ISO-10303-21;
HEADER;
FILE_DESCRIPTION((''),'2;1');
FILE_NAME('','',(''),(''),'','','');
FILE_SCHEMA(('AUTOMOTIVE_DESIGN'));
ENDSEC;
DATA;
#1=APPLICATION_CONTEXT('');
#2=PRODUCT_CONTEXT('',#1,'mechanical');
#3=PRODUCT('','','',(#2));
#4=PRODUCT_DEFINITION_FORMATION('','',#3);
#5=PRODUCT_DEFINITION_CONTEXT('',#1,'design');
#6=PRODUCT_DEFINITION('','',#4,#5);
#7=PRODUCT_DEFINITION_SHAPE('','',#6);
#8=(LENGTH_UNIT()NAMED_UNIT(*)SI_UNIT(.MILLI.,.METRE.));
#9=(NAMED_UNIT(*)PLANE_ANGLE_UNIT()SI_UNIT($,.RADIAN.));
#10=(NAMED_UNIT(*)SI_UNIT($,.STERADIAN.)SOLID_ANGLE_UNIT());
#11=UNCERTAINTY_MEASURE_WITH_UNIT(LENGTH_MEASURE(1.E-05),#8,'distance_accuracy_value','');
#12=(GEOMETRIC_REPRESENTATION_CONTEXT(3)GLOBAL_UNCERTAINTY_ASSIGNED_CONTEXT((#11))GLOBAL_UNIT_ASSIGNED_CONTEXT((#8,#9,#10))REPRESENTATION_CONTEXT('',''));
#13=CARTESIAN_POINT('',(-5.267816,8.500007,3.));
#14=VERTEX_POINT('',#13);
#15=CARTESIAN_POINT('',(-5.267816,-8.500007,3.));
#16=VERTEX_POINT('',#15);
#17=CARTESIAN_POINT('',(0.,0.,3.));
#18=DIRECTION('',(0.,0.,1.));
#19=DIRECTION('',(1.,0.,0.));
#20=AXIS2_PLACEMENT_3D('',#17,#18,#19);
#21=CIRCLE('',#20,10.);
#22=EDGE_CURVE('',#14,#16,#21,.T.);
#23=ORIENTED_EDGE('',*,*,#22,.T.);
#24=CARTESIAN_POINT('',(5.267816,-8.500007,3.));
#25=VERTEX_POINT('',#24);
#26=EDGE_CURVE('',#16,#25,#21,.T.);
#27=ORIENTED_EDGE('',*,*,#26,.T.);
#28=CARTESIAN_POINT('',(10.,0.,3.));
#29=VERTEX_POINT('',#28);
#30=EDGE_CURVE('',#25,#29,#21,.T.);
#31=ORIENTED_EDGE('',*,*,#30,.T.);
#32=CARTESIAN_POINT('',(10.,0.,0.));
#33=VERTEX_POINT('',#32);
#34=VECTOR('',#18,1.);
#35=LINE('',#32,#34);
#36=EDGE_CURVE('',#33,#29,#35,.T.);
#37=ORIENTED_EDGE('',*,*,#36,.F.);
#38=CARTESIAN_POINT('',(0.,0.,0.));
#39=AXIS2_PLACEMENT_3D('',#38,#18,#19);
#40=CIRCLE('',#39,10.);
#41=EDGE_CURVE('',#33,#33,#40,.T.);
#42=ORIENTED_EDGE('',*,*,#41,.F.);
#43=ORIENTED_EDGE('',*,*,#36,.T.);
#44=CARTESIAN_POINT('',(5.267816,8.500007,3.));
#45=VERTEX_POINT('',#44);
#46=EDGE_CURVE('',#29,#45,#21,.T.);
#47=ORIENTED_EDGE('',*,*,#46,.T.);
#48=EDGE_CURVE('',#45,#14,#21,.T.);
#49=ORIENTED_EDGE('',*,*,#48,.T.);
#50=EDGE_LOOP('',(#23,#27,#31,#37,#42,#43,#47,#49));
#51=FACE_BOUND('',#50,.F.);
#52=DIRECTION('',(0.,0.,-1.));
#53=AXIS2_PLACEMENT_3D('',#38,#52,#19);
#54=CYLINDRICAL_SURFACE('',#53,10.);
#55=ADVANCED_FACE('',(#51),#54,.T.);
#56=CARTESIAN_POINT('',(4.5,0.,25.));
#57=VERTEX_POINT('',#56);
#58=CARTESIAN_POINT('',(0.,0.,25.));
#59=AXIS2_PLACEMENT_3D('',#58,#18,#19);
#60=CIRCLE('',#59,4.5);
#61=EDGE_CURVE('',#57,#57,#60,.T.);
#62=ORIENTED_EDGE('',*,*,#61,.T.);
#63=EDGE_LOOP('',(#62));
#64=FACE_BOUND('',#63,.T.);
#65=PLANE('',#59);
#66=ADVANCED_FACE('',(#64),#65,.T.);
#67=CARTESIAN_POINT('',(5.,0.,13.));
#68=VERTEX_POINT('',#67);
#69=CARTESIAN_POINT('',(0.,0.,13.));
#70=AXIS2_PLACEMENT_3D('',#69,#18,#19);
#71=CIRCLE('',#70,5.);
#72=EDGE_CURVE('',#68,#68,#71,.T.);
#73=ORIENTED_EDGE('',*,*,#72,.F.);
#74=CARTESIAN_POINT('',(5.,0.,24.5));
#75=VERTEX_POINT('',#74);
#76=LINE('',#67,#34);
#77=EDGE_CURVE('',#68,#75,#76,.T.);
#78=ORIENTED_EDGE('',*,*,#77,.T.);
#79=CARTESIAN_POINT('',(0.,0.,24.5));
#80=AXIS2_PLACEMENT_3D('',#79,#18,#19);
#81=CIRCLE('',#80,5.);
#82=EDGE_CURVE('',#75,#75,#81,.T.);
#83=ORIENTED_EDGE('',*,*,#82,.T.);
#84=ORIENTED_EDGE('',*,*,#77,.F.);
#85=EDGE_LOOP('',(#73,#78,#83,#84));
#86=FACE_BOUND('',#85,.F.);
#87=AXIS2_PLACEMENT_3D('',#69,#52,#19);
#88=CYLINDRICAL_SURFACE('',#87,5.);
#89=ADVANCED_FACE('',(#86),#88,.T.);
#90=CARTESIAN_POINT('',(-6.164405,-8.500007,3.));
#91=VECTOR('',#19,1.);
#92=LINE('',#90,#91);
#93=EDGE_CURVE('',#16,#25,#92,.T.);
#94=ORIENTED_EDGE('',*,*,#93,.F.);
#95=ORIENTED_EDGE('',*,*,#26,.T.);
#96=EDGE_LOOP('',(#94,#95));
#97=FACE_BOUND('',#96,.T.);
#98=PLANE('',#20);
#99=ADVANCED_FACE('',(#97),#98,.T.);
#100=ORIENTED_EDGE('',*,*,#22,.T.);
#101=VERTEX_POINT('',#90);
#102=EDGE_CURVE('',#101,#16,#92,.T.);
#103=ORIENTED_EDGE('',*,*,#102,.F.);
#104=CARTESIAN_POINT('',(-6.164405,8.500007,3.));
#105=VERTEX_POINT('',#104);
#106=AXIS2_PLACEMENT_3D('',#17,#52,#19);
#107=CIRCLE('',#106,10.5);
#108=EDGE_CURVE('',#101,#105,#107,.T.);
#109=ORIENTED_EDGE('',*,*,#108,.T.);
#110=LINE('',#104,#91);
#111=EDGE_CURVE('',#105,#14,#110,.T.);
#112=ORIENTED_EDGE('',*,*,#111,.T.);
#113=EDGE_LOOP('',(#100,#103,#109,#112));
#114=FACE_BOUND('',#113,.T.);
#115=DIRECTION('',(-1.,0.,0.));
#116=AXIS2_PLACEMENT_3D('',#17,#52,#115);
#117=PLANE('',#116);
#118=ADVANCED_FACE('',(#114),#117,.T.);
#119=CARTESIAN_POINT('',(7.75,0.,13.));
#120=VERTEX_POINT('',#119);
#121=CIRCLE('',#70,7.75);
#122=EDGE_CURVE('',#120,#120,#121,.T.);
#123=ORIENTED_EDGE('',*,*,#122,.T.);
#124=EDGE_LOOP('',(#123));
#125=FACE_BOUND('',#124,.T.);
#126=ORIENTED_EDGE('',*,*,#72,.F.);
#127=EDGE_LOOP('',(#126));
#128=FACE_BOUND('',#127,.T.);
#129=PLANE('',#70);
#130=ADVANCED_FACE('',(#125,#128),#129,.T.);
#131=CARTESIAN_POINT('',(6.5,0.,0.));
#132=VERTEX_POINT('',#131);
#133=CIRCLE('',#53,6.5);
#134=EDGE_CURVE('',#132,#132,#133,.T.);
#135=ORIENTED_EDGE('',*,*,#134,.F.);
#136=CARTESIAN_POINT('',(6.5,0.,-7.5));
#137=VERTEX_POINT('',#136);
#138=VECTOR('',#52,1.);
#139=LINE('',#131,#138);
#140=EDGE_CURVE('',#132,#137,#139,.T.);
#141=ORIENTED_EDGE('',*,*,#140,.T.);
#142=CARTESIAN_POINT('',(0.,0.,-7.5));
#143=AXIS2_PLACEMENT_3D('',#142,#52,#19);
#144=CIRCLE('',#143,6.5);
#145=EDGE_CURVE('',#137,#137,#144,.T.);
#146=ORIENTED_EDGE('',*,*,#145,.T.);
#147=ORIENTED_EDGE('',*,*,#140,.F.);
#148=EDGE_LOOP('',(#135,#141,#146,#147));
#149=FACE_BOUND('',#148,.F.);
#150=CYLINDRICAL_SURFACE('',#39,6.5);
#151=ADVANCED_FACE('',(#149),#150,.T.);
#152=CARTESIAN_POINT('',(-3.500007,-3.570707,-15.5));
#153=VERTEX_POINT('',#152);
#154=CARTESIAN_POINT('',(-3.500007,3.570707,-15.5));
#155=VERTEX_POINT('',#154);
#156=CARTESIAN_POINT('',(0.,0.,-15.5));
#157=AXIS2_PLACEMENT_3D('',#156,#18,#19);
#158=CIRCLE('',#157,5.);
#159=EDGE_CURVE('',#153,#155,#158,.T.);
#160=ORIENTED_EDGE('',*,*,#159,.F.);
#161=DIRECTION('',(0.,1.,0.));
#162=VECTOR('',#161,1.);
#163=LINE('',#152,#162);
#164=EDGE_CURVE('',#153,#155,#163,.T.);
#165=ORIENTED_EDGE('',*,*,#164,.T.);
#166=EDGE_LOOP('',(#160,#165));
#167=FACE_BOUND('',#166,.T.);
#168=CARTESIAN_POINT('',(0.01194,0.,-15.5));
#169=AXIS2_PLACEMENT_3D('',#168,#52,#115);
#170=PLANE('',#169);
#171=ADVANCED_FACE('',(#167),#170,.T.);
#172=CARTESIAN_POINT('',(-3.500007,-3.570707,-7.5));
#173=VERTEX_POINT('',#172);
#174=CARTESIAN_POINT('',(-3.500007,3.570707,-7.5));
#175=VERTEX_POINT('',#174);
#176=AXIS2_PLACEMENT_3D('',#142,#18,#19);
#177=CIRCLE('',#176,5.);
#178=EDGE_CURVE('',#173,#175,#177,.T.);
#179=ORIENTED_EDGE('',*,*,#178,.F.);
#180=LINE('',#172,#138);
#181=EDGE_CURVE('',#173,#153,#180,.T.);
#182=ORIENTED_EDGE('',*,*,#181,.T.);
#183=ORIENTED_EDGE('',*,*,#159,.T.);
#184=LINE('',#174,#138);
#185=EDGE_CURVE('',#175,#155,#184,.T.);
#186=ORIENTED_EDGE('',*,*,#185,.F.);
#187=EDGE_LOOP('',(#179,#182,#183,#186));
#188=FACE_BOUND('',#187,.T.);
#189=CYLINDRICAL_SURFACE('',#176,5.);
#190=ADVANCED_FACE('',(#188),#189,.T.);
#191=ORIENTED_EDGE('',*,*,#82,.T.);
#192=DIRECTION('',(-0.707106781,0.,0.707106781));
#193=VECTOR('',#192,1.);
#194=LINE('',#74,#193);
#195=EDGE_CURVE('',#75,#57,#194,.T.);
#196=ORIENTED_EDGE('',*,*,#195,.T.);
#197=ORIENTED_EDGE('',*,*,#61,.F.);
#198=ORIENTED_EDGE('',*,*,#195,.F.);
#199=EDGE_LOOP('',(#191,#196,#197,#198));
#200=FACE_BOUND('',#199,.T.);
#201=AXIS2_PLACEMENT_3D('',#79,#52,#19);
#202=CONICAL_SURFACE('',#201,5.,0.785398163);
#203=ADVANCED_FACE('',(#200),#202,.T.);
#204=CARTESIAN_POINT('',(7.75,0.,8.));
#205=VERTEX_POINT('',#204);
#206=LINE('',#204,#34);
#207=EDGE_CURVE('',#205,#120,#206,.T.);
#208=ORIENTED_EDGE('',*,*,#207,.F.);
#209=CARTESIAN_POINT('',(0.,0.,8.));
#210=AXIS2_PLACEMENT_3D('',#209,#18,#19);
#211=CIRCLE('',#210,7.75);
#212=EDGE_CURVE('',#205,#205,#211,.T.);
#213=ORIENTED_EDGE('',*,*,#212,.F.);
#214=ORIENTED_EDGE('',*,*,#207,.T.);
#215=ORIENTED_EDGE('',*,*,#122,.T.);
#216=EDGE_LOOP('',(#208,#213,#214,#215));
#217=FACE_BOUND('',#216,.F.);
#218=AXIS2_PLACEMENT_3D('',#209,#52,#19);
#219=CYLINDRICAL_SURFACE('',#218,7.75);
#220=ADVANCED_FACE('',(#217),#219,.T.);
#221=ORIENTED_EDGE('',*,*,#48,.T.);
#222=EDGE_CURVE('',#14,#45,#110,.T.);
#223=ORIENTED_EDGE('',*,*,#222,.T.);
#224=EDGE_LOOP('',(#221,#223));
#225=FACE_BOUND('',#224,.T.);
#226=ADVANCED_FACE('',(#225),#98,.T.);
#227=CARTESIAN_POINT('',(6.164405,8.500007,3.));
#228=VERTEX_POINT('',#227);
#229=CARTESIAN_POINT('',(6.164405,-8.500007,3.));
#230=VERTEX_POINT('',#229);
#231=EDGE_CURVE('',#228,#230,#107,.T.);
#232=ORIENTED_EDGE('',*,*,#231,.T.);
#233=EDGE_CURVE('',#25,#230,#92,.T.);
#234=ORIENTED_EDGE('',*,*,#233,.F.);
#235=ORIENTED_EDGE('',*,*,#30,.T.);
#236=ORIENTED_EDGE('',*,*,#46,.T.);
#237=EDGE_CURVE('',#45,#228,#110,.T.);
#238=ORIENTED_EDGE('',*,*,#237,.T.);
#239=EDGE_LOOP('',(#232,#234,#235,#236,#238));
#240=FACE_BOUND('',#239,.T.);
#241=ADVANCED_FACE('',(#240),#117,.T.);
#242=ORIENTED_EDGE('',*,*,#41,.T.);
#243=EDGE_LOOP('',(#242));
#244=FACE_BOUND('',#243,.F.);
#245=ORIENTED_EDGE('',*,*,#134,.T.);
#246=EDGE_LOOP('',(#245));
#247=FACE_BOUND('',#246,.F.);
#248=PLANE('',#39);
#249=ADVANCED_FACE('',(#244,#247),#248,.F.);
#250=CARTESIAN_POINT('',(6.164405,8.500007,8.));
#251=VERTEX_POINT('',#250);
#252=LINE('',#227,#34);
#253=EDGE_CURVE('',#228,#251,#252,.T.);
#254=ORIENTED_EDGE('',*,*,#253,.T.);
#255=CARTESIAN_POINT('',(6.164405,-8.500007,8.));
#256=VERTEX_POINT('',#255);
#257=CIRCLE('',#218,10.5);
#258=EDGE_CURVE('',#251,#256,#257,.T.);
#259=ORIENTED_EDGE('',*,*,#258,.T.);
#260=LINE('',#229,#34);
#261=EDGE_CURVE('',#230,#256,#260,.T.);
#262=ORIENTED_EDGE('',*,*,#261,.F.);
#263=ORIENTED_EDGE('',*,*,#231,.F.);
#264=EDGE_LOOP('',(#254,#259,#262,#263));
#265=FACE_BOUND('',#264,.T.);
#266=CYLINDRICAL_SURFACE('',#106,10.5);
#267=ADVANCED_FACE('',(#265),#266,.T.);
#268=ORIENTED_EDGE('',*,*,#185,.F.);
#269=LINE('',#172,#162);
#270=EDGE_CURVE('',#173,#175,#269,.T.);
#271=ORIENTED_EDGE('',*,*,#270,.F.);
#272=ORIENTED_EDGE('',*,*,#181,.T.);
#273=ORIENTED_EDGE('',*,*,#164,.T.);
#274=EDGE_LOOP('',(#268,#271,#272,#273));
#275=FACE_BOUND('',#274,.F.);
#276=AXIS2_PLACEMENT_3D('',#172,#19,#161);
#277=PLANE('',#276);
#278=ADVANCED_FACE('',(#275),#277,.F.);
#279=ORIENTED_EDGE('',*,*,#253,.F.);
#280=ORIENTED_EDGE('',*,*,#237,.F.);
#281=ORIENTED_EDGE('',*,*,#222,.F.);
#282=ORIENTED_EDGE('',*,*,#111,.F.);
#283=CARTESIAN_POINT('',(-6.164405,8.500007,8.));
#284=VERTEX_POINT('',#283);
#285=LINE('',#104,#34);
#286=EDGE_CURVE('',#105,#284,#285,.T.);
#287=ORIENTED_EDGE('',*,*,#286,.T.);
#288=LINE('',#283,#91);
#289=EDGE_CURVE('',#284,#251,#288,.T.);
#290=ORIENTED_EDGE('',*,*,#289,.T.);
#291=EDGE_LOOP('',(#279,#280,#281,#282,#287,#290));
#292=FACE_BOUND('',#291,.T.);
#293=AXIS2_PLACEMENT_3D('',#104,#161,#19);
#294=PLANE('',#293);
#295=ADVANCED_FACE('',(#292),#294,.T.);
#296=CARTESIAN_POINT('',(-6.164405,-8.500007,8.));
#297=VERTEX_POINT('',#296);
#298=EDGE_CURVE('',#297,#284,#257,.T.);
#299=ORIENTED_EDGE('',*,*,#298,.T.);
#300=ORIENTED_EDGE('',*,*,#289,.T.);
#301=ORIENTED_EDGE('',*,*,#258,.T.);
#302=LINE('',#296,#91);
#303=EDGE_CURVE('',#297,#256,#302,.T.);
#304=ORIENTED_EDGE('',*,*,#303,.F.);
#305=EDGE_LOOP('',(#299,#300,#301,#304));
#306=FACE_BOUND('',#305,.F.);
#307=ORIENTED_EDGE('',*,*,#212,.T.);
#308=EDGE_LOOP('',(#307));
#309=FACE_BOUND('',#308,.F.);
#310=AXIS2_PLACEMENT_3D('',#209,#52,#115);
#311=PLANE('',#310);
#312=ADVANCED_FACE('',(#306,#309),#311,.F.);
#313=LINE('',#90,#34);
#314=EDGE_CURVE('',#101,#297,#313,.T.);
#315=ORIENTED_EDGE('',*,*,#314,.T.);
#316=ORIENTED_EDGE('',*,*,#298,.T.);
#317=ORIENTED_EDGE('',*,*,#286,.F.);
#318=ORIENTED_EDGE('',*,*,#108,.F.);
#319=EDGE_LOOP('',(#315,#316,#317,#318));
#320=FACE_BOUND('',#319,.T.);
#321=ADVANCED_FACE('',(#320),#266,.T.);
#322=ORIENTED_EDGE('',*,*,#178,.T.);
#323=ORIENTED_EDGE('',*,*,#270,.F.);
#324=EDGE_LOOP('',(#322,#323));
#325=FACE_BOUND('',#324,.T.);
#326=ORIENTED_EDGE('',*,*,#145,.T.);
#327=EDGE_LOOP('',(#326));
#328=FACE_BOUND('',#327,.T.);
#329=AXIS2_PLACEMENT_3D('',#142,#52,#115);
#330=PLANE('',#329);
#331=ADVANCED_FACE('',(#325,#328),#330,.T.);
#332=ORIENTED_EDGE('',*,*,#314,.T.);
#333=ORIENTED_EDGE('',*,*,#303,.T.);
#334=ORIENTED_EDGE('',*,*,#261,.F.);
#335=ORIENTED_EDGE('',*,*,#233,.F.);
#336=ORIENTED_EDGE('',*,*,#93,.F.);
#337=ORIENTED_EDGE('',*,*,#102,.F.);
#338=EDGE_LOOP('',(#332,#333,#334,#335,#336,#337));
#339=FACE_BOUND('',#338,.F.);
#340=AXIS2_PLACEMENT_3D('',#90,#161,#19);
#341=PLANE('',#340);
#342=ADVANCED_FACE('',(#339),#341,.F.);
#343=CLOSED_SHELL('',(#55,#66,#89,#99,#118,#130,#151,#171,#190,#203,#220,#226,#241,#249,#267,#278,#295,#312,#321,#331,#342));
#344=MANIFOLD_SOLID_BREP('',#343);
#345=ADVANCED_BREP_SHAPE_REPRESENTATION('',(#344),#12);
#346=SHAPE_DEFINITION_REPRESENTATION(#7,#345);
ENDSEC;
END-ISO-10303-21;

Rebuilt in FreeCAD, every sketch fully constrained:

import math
import FreeCAD as App
import Part
import Sketcher
from FreeCAD import Vector
Q = App.Units.Quantity


def edges_at(feature, points):
    """Names of the edges that pass closest to the given points."""
    edges = feature.Shape.Edges
    near = lambda p: min(range(len(edges)), key=lambda i: edges[i].distToShape(Part.Vertex(*p))[0])
    return sorted({f"Edge{near(p) + 1}" for p in points})

doc = App.newDocument("Part")
params = doc.addObject("Spreadsheet::Sheet", "Params")
for row, (alias, value) in enumerate([
    ("sketch1_diameter", "20 mm"),
    ("pad1_length", "3 mm"),
    ("sketch2_diameter", "13 mm"),
    ("pad2_length", "7.5 mm"),
    ("sketch3_radius", "5 mm"),
    ("pad3_length", "8 mm"),
    ("sketch4_radius", "10.5 mm"),
    ("pad4_length", "5 mm"),
    ("sketch5_diameter", "15.5 mm"),
    ("pad5_length", "5 mm"),
    ("sketch6_diameter", "10 mm"),
    ("pad6_length", "12 mm"),
    ("chamfer_size", "0.5 mm"),
], start=1):
    params.set(f"A{row}", alias)
    params.set(f"B{row}", "=" + value)
    params.setAlias(f"B{row}", alias)

body = doc.addObject("PartDesign::Body", "Body")

sketch1 = body.newObject("Sketcher::SketchObject", "Sketch")
sketch1.AttachmentSupport = (doc.getObject("XY_Plane"), [""])
sketch1.MapMode = "FlatFace"
sketch1.addGeometry(Part.Circle(Vector(0, 0, 0), Vector(0, 0, 1), 10), False)
sketch1.addConstraint(Sketcher.Constraint("Coincident", 0, 3, -1, 1))
sketch1.addConstraint(Sketcher.Constraint("Diameter", 0, Q("20 mm")))
sketch1.setExpression("Constraints[1]", "Params.sketch1_diameter")
pad1 = body.newObject("PartDesign::Pad", "Pad")
pad1.Profile = sketch1
pad1.setExpression("Length", "Params.pad1_length")

sketch2 = body.newObject("Sketcher::SketchObject", "Sketch001")
sketch2.AttachmentSupport = (doc.getObject("XY_Plane"), [""])
sketch2.MapMode = "FlatFace"
sketch2.addGeometry(Part.Circle(Vector(0, 0, 0), Vector(0, 0, 1), 6), False)
sketch2.addConstraint(Sketcher.Constraint("Coincident", 0, 3, -1, 1))
sketch2.addConstraint(Sketcher.Constraint("Diameter", 0, Q("13 mm")))
sketch2.setExpression("Constraints[1]", "Params.sketch2_diameter")
pad2 = body.newObject("PartDesign::Pad", "Pad001")
pad2.Profile = sketch2
pad2.setExpression("Length", "Params.pad2_length")
pad2.Reversed = True

sketch3 = body.newObject("Sketcher::SketchObject", "Sketch002")
sketch3.AttachmentSupport = (doc.getObject("XY_Plane"), [""])
sketch3.MapMode = "FlatFace"
sketch3.AttachmentOffset = App.Placement(Vector(0, 0, -7.5), App.Rotation())
sketch3.addGeometry(Part.ArcOfCircle(Part.Circle(Vector(0, 0, 0), Vector(0, 0, 1), 5), math.radians(-134), math.radians(134)), False)
sketch3.addGeometry(Part.LineSegment(Vector(-3.5, -3.6, 0), Vector(-3.5, 3.6, 0)), False)
sketch3.addConstraint(Sketcher.Constraint("Coincident", 0, 1, 1, 1))
sketch3.addConstraint(Sketcher.Constraint("Coincident", 1, 2, 0, 2))
sketch3.addConstraint(Sketcher.Constraint("Vertical", 1))
sketch3.addConstraint(Sketcher.Constraint("Coincident", 0, 3, -1, 1))
sketch3.addConstraint(Sketcher.Constraint("Radius", 0, Q("5 mm")))
sketch3.addConstraint(Sketcher.Constraint("DistanceX", 0, 1, -1, 1, Q("3.5 mm")))
sketch3.setExpression("Constraints[4]", "Params.sketch3_radius")
pad3 = body.newObject("PartDesign::Pad", "Pad002")
pad3.Profile = sketch3
pad3.setExpression("Length", "Params.pad3_length")
pad3.Reversed = True

sketch4 = body.newObject("Sketcher::SketchObject", "Sketch003")
sketch4.AttachmentSupport = (doc.getObject("XY_Plane"), [""])
sketch4.MapMode = "FlatFace"
sketch4.AttachmentOffset = App.Placement(Vector(0, 0, 3), App.Rotation())
sketch4.addGeometry(Part.LineSegment(Vector(6, 8, 0), Vector(-6, 8, 0)), False)
sketch4.addGeometry(Part.ArcOfCircle(Part.Circle(Vector(0, 0, 0), Vector(0, 0, 1), 10), math.radians(126), math.radians(234)), False)
sketch4.addGeometry(Part.LineSegment(Vector(-6, -8, 0), Vector(6, -8, 0)), False)
sketch4.addGeometry(Part.ArcOfCircle(Part.Circle(Vector(0, 0, 0), Vector(0, 0, 1), 10), math.radians(-54), math.radians(54)), False)
sketch4.addConstraint(Sketcher.Constraint("Coincident", 0, 2, 1, 1))
sketch4.addConstraint(Sketcher.Constraint("Coincident", 1, 2, 2, 1))
sketch4.addConstraint(Sketcher.Constraint("Coincident", 2, 2, 3, 1))
sketch4.addConstraint(Sketcher.Constraint("Coincident", 3, 2, 0, 1))
sketch4.addConstraint(Sketcher.Constraint("Horizontal", 0))
sketch4.addConstraint(Sketcher.Constraint("Horizontal", 2))
sketch4.addConstraint(Sketcher.Constraint("Coincident", 1, 3, -1, 1))
sketch4.addConstraint(Sketcher.Constraint("Coincident", 3, 3, -1, 1))
sketch4.addConstraint(Sketcher.Constraint("Equal", 1, 3))
sketch4.addConstraint(Sketcher.Constraint("Vertical", 0, 2, 1, 2))
sketch4.addConstraint(Sketcher.Constraint("Radius", 1, Q("10.5 mm")))
sketch4.addConstraint(Sketcher.Constraint("DistanceY", 1, 2, 0, 2, Q("17 mm")))
sketch4.setExpression("Constraints[10]", "Params.sketch4_radius")
pad4 = body.newObject("PartDesign::Pad", "Pad003")
pad4.Profile = sketch4
pad4.setExpression("Length", "Params.pad4_length")

sketch5 = body.newObject("Sketcher::SketchObject", "Sketch004")
sketch5.AttachmentSupport = (doc.getObject("XY_Plane"), [""])
sketch5.MapMode = "FlatFace"
sketch5.AttachmentOffset = App.Placement(Vector(0, 0, 8), App.Rotation())
sketch5.addGeometry(Part.Circle(Vector(0, 0, 0), Vector(0, 0, 1), 8), False)
sketch5.addConstraint(Sketcher.Constraint("Coincident", 0, 3, -1, 1))
sketch5.addConstraint(Sketcher.Constraint("Diameter", 0, Q("15.5 mm")))
sketch5.setExpression("Constraints[1]", "Params.sketch5_diameter")
pad5 = body.newObject("PartDesign::Pad", "Pad004")
pad5.Profile = sketch5
pad5.setExpression("Length", "Params.pad5_length")

sketch6 = body.newObject("Sketcher::SketchObject", "Sketch005")
sketch6.AttachmentSupport = (doc.getObject("XY_Plane"), [""])
sketch6.MapMode = "FlatFace"
sketch6.AttachmentOffset = App.Placement(Vector(0, 0, 13), App.Rotation())
sketch6.addGeometry(Part.Circle(Vector(0, 0, 0), Vector(0, 0, 1), 5), False)
sketch6.addConstraint(Sketcher.Constraint("Coincident", 0, 3, -1, 1))
sketch6.addConstraint(Sketcher.Constraint("Diameter", 0, Q("10 mm")))
sketch6.setExpression("Constraints[1]", "Params.sketch6_diameter")
pad6 = body.newObject("PartDesign::Pad", "Pad005")
pad6.Profile = sketch6
pad6.setExpression("Length", "Params.pad6_length")
doc.recompute()

chamfer = body.newObject("PartDesign::Chamfer", "Chamfer")
chamfer.Base = (pad6, edges_at(pad6, [(-5, 0, 25)]))
chamfer.setExpression("Size", "Params.chamfer_size")

doc.recompute()
